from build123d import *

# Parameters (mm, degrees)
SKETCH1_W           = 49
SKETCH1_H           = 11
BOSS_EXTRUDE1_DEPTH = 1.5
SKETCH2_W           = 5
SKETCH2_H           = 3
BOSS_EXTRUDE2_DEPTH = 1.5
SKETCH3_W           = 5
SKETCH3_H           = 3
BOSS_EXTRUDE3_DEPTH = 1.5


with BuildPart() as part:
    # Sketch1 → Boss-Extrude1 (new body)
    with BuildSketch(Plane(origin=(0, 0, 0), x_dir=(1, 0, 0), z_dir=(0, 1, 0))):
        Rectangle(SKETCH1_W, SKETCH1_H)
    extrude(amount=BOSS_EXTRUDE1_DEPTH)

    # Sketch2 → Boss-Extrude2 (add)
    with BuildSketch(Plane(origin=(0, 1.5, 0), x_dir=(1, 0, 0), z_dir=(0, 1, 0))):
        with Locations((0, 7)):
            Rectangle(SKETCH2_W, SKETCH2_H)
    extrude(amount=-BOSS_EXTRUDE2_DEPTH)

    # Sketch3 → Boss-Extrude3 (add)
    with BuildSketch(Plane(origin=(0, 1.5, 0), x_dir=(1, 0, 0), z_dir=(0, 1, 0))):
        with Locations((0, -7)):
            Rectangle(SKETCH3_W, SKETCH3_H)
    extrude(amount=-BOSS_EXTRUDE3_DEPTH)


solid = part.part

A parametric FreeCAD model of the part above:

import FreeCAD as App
import Part
import Sketcher


def add_polygon(sketch, points):
    """Adds a closed chain of lines whose ends are joined by coincident constraints."""
    first, n = sketch.GeometryCount, len(points)
    for a, b in zip(points, points[1:] + points[:1]):
        sketch.addGeometry(Part.LineSegment(App.Vector(*a, 0), App.Vector(*b, 0)), False)
    for i in range(n):
        sketch.addConstraint(Sketcher.Constraint("Coincident", first + i, 2, first + (i + 1) % n, 1))

doc = App.newDocument("Part")
body = doc.addObject("PartDesign::Body", "Body")

# Sketch on XZ plane
sketch1 = body.newObject("Sketcher::SketchObject", "Sketch")
sketch1.AttachmentSupport = (doc.getObject("XZ_Plane"), [""])
sketch1.MapMode = "FlatFace"
add_polygon(sketch1, [(-24, -6), (-24, 6), (24, 6), (24, -6)])  # lines 0-3
sketch1.addConstraint([
    Sketcher.Constraint("Vertical", 0),
    Sketcher.Constraint("Horizontal", 1),
    Sketcher.Constraint("Vertical", 2),
    Sketcher.Constraint("Horizontal", 3),
    Sketcher.Constraint("Symmetric", 0, 2, 2, 2, -1, 1),
    Sketcher.Constraint("DistanceX", 1, 1, 1, 2, 49.0),
    Sketcher.Constraint("DistanceY", 0, 1, 0, 2, 11.0),
])
pad1 = body.newObject("PartDesign::Pad", "Pad")
pad1.Profile = sketch1
pad1.Length = 1.5
pad1.Reversed = True

# Sketch on XZ plane
sketch2 = body.newObject("Sketcher::SketchObject", "Sketch001")
sketch2.AttachmentSupport = (doc.getObject("XZ_Plane"), [""])
sketch2.MapMode = "FlatFace"
sketch2.AttachmentOffset = App.Placement(App.Vector(0, 0, -1.5), App.Rotation())
add_polygon(sketch2, [(-2.5, -8.5), (-2.5, -5.5), (2.5, -5.5), (2.5, -8.5)])  # lines 0-3
sketch2.addConstraint([
    Sketcher.Constraint("Vertical", 0),
    Sketcher.Constraint("Horizontal", 1),
    Sketcher.Constraint("Vertical", 2),
    Sketcher.Constraint("Horizontal", 3),
    Sketcher.Constraint("DistanceX", 1, 1, 1, 2, 5.0),
    Sketcher.Constraint("DistanceY", 0, 1, 0, 2, 3.0),
    Sketcher.Constraint("DistanceX", 0, 2, -1, 1, 2.5),
    Sketcher.Constraint("DistanceY", 0, 2, -1, 1, 5.5),
])
pad2 = body.newObject("PartDesign::Pad", "Pad001")
pad2.Profile = sketch2
pad2.Length = 1.5

# Sketch on XZ plane
sketch3 = body.newObject("Sketcher::SketchObject", "Sketch002")
sketch3.AttachmentSupport = (doc.getObject("XZ_Plane"), [""])
sketch3.MapMode = "FlatFace"
sketch3.AttachmentOffset = App.Placement(App.Vector(0, 0, -1.5), App.Rotation())
add_polygon(sketch3, [(-2.5, 5.5), (-2.5, 8.5), (2.5, 8.5), (2.5, 5.5)])  # lines 0-3
sketch3.addConstraint([
    Sketcher.Constraint("Vertical", 0),
    Sketcher.Constraint("Horizontal", 1),
    Sketcher.Constraint("Vertical", 2),
    Sketcher.Constraint("Horizontal", 3),
    Sketcher.Constraint("DistanceX", 1, 1, 1, 2, 5.0),
    Sketcher.Constraint("DistanceY", 0, 1, 0, 2, 3.0),
    Sketcher.Constraint("DistanceX", 0, 2, -1, 1, 2.5),
    Sketcher.Constraint("DistanceY", -1, 1, 0, 2, 8.5),
])
pad3 = body.newObject("PartDesign::Pad", "Pad002")
pad3.Profile = sketch3
pad3.Length = 1.5

doc.recompute()
